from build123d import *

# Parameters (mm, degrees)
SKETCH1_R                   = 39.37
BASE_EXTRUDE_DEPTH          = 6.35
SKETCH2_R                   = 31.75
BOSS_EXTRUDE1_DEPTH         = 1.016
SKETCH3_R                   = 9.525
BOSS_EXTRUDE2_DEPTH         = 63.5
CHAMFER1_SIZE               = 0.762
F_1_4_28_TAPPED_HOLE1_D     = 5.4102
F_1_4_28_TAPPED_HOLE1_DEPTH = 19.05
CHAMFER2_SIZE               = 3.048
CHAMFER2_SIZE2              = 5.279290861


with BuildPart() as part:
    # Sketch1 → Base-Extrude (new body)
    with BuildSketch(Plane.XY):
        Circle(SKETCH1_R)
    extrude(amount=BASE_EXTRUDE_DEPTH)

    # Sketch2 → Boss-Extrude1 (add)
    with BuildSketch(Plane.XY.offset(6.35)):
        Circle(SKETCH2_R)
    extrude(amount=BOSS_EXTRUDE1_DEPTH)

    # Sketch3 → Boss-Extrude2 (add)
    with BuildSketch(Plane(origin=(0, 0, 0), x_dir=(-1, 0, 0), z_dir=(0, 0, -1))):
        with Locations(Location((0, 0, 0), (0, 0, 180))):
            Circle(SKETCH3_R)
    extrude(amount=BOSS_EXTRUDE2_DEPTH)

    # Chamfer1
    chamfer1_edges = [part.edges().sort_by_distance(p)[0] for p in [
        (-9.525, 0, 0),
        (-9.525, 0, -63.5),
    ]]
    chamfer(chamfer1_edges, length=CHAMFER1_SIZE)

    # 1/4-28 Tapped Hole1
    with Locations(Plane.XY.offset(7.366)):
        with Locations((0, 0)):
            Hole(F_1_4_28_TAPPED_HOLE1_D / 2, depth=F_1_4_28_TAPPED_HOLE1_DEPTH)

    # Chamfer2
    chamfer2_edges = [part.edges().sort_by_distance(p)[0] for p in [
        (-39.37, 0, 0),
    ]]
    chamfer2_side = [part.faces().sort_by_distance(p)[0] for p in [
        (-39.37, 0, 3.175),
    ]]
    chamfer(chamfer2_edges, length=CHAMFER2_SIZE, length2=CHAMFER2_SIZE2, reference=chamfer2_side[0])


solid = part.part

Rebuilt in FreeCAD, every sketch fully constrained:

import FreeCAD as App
import Part
import Sketcher

V = App.Vector
Q = App.Units.Quantity


def edges_at(feature, points):
    """Names of the edges that pass closest to the given points."""
    edges = feature.Shape.Edges
    near = lambda p: min(range(len(edges)), key=lambda i: edges[i].distToShape(Part.Vertex(*p))[0])
    return sorted({f"Edge{near(p) + 1}" for p in points})

doc = App.newDocument("Part")
body = doc.addObject("PartDesign::Body", "Body")

# Sketch on XY plane
sketch1 = doc.addObject("Sketcher::SketchObject", "Sketch")
body.addObject(sketch1)
sketch1.AttachmentSupport = (doc.XY_Plane, [""])
sketch1.MapMode = "FlatFace"
sketch1.addGeometry(Part.Circle(V(0, 0, 0), V(0, 0, 1), 39), False)
sketch1.addConstraint(Sketcher.Constraint("Coincident", 0, 3, -1, 1))
sketch1.addConstraint(Sketcher.Constraint("Diameter", 0, Q("3.1 in")))
pad1 = doc.addObject("PartDesign::Pad", "Pad")
body.addObject(pad1)
pad1.Profile = sketch1
pad1.Length = Q("0.25 in")

# Sketch on XY plane
sketch2 = doc.addObject("Sketcher::SketchObject", "Sketch001")
body.addObject(sketch2)
sketch2.AttachmentSupport = (doc.XY_Plane, [""])
sketch2.MapMode = "FlatFace"
sketch2.AttachmentOffset = App.Placement(V(0, 0, 0.25 * 25.4), App.Rotation())
sketch2.addGeometry(Part.Circle(V(0, 0, 0), V(0, 0, 1), 32), False)
sketch2.addConstraint(Sketcher.Constraint("Coincident", 0, 3, -1, 1))
sketch2.addConstraint(Sketcher.Constraint("Diameter", 0, Q("2.5 in")))
pad2 = doc.addObject("PartDesign::Pad", "Pad001")
body.addObject(pad2)
pad2.Profile = sketch2
pad2.Length = Q("0.04 in")

# Sketch on XY plane
sketch3 = doc.addObject("Sketcher::SketchObject", "Sketch002")
body.addObject(sketch3)
sketch3.AttachmentSupport = (doc.XY_Plane, [""])
sketch3.MapMode = "FlatFace"
sketch3.addGeometry(Part.Circle(V(0, 0, 0), V(0, 0, 1), 10), False)
sketch3.addConstraint(Sketcher.Constraint("Coincident", 0, 3, -1, 1))
sketch3.addConstraint(Sketcher.Constraint("Diameter", 0, Q("0.75 in")))
pad3 = doc.addObject("PartDesign::Pad", "Pad002")
body.addObject(pad3)
pad3.Profile = sketch3
pad3.Length = Q("2.5 in")
pad3.Reversed = True
doc.recompute()

chamfer = doc.addObject("PartDesign::Chamfer", "Chamfer")
body.addObject(chamfer)
chamfer.Base = (pad3, edges_at(pad3, [(-9.525, 0, 0), (-9.525, 0, -63.5)]))
chamfer.Size = Q("0.03 in")

# Sketch on XY plane
sketch4 = doc.addObject("Sketcher::SketchObject", "Sketch003")
body.addObject(sketch4)
sketch4.AttachmentSupport = (doc.XY_Plane, [""])
sketch4.MapMode = "FlatFace"
sketch4.AttachmentOffset = App.Placement(V(0, 0, 0.29 * 25.4), App.Rotation())
sketch4.addGeometry(Part.Circle(V(0, 0, 0), V(0, 0, 1), 2.7), False)
sketch4.addConstraint(Sketcher.Constraint("Coincident", 0, 3, -1, 1))
sketch4.addConstraint(Sketcher.Constraint("Diameter", 0, Q("0.213 in")))
doc.recompute()
hole = doc.addObject("PartDesign::Hole", "Hole")
body.addObject(hole)
hole.Profile = sketch4
hole.ThreadType = "None"
hole.Diameter = Q("0.213 in")
hole.DepthType = "Dimension"
hole.Depth = Q("0.75 in")
hole.DrillPoint = "Flat"
doc.recompute()

chamfer2 = doc.addObject("PartDesign::Chamfer", "Chamfer001")
body.addObject(chamfer2)
chamfer2.Base = (hole, edges_at(hole, [(-39.37, 0, 0)]))
chamfer2.ChamferType = "Two distances"
chamfer2.Size = Q("0.12 in")
chamfer2.Size2 = 5.279291
chamfer2.FlipDirection = True

doc.recompute()
